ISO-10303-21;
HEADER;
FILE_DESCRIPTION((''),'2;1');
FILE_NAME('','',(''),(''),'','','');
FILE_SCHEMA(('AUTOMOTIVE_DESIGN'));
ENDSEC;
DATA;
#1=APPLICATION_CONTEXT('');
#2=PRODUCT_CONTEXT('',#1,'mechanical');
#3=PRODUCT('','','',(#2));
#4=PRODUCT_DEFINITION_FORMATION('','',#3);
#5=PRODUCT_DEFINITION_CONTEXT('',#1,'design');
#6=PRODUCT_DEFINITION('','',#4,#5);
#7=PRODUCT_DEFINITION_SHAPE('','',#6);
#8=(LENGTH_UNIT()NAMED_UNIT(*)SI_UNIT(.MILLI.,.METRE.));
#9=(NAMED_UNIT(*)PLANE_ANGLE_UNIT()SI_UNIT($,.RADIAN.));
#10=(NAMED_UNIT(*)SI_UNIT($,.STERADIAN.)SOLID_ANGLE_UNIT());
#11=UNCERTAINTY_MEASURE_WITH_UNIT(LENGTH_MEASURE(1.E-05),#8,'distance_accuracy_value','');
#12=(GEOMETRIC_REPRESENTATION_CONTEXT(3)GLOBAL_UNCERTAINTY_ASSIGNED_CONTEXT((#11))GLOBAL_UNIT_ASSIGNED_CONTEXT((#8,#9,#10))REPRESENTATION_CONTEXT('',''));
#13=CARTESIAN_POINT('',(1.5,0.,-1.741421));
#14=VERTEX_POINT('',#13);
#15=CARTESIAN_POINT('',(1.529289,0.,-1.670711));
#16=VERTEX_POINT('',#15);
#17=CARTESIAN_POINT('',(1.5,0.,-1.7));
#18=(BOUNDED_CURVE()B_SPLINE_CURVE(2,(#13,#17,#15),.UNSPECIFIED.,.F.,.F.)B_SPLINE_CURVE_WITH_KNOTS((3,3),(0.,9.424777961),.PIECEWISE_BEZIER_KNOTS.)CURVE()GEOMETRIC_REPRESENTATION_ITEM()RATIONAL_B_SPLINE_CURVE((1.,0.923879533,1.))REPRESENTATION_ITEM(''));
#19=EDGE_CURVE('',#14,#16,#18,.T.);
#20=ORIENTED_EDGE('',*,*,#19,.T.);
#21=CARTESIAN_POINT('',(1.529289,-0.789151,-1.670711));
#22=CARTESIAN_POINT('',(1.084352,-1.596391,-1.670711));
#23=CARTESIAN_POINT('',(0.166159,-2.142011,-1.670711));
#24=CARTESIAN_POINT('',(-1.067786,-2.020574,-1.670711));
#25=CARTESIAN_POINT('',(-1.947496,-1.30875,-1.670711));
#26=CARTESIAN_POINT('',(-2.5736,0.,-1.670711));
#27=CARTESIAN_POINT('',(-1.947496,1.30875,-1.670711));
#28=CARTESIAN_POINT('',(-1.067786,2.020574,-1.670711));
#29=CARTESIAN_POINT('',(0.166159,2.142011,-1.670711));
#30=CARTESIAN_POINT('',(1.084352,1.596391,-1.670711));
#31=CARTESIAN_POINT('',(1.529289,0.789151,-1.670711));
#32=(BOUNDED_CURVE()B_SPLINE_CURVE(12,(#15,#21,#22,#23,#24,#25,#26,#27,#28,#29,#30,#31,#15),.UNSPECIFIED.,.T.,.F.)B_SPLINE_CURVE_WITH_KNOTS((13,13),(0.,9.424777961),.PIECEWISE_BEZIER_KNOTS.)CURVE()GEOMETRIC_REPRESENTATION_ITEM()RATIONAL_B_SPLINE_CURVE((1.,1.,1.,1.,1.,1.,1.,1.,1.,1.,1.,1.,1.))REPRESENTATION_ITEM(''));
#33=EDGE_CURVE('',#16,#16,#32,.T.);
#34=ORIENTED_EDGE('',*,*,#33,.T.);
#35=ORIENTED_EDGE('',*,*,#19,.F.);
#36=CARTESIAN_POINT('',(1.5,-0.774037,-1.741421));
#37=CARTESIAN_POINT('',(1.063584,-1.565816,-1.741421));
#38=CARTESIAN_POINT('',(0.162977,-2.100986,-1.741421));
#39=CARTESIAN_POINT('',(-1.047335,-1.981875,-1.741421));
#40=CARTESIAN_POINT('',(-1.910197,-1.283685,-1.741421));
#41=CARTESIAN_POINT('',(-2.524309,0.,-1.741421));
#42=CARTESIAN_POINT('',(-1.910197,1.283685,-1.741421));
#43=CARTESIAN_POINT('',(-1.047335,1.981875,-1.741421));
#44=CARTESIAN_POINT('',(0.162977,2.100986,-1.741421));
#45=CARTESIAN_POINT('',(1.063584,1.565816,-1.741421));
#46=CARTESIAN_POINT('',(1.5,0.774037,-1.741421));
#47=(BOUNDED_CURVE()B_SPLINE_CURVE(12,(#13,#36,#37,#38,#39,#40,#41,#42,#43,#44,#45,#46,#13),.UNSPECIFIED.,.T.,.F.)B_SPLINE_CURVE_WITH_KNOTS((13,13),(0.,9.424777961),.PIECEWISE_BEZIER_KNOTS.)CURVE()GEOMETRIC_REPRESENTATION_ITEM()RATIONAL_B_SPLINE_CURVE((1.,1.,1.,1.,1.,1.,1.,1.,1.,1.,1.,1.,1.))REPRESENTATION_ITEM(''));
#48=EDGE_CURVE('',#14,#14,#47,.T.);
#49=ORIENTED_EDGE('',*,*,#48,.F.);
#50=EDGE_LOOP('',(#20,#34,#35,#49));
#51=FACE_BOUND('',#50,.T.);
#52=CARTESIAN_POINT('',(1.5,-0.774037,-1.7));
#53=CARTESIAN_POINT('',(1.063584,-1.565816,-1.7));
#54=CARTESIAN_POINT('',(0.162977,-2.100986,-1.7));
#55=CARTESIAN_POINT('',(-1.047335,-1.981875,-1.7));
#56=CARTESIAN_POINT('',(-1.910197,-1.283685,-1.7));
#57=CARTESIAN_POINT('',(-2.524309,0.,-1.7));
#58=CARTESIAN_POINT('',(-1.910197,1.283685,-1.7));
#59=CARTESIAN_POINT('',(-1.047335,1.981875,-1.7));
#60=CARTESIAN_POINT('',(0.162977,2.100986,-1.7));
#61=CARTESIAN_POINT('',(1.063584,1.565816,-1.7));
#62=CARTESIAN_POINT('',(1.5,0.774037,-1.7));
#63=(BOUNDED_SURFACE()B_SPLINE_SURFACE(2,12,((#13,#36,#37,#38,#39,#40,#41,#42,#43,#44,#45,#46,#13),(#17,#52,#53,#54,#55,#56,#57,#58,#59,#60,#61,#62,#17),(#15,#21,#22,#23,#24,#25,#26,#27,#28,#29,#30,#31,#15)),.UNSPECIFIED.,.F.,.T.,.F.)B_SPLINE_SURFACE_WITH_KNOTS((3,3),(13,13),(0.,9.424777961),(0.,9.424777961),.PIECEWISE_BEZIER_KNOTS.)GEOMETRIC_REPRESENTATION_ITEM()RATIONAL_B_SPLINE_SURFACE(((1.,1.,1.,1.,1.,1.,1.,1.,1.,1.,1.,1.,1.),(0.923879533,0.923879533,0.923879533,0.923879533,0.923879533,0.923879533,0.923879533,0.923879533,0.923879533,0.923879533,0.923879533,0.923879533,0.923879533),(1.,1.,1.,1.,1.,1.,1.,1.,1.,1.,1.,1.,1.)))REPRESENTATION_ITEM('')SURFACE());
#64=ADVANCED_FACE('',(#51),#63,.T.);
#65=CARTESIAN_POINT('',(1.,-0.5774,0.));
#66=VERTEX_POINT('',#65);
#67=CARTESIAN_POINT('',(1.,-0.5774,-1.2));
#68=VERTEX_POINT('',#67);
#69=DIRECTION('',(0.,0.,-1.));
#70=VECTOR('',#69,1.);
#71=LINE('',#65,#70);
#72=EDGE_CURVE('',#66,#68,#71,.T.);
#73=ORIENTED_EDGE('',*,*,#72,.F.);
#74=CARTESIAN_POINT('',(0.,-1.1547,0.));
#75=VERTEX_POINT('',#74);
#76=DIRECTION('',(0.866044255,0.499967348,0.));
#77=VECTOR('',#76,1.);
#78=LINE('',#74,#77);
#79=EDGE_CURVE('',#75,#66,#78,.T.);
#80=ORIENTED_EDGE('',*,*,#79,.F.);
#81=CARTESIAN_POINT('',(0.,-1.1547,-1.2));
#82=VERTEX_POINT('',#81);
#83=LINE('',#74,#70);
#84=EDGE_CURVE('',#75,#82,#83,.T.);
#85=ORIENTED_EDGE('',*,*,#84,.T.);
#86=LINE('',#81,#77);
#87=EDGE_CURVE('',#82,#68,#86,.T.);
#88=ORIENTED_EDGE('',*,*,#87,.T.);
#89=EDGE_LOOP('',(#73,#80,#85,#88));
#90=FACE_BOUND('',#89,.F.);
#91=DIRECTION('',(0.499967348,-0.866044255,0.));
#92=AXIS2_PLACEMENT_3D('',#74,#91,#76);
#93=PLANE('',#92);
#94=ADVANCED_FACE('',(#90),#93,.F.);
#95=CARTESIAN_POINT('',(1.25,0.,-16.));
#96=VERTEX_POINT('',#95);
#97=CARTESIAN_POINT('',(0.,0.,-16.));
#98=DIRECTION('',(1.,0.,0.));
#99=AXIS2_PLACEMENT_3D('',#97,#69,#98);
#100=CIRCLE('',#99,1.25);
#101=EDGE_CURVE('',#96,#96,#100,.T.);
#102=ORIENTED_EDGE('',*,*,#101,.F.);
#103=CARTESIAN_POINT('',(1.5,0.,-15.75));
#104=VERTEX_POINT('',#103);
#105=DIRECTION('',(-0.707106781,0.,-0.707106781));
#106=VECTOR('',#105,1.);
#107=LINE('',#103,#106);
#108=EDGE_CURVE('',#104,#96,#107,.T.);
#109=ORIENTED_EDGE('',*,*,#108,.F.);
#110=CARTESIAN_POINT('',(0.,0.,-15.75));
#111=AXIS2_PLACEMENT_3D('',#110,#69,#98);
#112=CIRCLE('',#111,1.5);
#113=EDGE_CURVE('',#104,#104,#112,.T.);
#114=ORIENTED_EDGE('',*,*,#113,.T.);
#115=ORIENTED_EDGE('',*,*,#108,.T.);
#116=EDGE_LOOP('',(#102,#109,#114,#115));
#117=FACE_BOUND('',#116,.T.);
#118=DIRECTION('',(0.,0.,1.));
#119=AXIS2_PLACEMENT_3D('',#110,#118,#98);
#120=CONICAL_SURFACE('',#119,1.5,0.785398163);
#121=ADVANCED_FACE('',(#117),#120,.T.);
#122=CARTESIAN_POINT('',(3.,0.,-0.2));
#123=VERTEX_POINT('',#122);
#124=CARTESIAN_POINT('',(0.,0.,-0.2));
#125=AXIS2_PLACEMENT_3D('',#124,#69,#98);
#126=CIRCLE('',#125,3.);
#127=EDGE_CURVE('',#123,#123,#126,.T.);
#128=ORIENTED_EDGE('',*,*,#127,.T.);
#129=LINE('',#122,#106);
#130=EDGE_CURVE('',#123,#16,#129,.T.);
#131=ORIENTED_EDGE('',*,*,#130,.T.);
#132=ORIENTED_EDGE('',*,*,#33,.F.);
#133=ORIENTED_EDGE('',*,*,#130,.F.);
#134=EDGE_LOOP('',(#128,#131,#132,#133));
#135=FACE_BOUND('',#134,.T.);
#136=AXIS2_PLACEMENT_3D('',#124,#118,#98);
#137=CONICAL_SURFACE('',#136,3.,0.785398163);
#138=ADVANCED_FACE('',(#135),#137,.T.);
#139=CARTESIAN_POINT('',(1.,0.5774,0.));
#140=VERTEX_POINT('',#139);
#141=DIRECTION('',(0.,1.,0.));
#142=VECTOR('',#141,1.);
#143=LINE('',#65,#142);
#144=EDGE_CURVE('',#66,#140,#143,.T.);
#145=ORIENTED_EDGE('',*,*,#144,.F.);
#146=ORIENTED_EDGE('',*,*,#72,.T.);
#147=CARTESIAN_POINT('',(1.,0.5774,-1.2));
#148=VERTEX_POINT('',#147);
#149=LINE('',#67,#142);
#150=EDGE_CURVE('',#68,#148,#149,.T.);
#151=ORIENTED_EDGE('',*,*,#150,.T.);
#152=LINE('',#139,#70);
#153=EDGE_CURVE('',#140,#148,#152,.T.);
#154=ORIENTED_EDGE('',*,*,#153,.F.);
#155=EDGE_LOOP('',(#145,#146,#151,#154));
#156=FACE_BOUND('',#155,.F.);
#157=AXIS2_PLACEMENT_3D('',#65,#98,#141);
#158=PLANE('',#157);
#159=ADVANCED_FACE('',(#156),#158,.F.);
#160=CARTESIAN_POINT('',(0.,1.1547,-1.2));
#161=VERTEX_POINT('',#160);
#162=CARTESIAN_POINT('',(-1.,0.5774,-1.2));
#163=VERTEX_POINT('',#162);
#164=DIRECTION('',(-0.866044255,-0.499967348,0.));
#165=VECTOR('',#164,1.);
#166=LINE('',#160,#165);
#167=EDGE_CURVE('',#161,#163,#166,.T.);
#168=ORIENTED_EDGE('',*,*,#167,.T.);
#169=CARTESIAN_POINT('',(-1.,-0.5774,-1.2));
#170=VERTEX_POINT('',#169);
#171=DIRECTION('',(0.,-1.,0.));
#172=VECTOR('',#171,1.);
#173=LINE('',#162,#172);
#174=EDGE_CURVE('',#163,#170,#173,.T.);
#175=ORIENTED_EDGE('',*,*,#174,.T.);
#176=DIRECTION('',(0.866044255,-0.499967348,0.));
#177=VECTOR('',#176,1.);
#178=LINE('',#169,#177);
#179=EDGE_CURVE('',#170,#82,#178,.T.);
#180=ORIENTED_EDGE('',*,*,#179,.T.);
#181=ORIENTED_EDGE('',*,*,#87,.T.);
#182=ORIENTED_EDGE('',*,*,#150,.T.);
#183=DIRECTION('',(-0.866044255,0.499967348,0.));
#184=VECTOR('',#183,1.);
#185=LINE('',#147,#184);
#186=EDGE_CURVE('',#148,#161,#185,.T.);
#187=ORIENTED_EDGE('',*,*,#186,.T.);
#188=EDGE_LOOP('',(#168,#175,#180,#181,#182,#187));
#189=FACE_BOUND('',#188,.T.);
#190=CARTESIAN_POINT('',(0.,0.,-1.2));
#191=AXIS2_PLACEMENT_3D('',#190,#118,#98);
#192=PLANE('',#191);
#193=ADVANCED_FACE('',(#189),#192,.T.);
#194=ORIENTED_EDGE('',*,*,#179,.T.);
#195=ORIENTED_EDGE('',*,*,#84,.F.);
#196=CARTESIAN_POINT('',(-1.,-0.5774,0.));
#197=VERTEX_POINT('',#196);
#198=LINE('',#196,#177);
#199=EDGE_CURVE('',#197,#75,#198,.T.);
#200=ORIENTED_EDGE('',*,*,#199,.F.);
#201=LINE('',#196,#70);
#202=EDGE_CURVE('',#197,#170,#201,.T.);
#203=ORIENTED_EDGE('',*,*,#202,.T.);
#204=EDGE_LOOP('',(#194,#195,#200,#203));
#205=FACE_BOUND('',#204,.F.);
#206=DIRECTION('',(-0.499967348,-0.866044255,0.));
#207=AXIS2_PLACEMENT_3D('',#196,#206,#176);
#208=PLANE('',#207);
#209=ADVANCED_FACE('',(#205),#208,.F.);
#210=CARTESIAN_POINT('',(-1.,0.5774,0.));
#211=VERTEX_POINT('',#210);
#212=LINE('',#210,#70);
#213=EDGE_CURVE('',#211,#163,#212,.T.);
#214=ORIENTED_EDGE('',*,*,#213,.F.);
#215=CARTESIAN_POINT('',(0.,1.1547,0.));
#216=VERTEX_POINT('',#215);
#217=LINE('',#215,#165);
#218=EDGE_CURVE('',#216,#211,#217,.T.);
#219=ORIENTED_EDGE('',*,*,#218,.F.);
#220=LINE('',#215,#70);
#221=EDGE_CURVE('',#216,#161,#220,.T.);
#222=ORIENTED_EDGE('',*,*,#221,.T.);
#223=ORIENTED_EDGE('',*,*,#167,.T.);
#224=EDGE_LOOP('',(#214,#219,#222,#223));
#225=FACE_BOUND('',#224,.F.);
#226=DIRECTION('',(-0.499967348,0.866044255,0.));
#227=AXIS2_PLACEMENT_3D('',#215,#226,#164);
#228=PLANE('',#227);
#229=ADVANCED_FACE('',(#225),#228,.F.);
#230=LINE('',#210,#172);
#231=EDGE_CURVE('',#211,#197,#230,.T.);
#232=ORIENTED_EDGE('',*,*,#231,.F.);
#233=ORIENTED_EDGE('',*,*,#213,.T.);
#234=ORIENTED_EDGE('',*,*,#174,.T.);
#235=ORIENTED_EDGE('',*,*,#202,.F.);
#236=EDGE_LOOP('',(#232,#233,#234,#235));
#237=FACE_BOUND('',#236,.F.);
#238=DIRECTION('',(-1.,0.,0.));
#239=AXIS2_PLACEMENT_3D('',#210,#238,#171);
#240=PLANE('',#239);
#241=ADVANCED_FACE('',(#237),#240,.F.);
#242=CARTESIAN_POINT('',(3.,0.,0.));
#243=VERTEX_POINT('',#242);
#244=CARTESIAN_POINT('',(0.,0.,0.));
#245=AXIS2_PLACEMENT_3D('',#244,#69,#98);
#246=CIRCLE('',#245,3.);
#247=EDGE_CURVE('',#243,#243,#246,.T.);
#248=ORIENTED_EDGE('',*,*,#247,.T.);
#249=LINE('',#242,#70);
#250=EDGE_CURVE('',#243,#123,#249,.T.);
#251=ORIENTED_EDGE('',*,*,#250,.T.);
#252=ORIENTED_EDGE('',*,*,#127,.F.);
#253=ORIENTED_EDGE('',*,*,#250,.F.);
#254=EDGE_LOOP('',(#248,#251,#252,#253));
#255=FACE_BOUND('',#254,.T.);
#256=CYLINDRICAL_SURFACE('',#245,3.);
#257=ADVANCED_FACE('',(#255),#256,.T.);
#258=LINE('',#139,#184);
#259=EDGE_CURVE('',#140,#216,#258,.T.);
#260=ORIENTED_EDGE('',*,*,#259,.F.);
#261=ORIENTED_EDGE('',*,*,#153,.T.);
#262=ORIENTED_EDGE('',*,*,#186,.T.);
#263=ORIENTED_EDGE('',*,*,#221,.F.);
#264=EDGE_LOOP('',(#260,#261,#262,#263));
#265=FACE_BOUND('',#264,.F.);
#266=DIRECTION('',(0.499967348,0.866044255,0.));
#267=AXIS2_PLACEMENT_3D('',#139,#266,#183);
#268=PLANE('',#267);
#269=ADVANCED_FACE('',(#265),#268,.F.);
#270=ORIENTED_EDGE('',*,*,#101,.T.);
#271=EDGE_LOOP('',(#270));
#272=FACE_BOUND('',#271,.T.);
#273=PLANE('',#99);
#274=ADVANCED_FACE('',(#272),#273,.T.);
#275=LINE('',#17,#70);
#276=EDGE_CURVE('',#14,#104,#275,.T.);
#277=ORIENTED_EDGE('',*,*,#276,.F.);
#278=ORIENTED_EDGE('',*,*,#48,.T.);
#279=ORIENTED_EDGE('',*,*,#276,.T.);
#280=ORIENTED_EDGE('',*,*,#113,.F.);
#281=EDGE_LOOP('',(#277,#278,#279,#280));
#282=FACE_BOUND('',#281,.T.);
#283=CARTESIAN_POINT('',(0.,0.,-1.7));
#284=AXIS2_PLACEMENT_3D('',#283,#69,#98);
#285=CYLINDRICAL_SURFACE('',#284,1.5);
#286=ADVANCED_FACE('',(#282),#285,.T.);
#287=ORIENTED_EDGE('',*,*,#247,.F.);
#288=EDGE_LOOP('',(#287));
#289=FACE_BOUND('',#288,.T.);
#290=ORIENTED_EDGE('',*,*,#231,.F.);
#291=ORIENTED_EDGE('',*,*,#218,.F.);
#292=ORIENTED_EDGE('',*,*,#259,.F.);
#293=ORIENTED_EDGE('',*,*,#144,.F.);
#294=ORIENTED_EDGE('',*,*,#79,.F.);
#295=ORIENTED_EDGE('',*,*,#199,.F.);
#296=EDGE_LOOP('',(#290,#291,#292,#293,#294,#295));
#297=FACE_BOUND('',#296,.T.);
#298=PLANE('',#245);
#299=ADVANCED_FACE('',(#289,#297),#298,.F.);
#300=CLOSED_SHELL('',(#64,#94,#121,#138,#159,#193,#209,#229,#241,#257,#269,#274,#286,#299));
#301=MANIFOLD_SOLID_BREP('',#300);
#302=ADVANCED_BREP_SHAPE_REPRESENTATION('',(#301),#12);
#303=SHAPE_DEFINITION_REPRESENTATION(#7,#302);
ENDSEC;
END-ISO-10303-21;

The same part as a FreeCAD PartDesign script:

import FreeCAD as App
import Part
import Sketcher

V = App.Vector


def edges_at(feature, points):
    """Names of the edges that pass closest to the given points."""
    edges = feature.Shape.Edges
    near = lambda p: min(range(len(edges)), key=lambda i: edges[i].distToShape(Part.Vertex(*p))[0])
    return sorted({f"Edge{near(p) + 1}" for p in points})


def add_polygon(sketch, points):
    """Adds a closed chain of lines whose ends are joined by coincident constraints."""
    first, n = sketch.GeometryCount, len(points)
    for a, b in zip(points, points[1:] + points[:1]):
        sketch.addGeometry(Part.LineSegment(App.Vector(*a, 0), App.Vector(*b, 0)), False)
    for i in range(n):
        sketch.addConstraint(Sketcher.Constraint("Coincident", first + i, 2, first + (i + 1) % n, 1))

doc = App.newDocument("Part")
body = doc.addObject("PartDesign::Body", "Body")

# Sketch on XZ plane
sketch1 = body.newObject("Sketcher::SketchObject", "Sketch")
sketch1.AttachmentSupport = (doc.getObject("XZ_Plane"), [""])
sketch1.MapMode = "FlatFace"
add_polygon(sketch1, [(1.5, -1.7), (1.5, -16), (0, -16), (0, 0), (3, 0), (3, -0.2)])  # lines 0-5
sketch1.addConstraint([
    Sketcher.Constraint("Vertical", 0),
    Sketcher.Constraint("Horizontal", 1),
    Sketcher.Constraint("Vertical", 2),
    Sketcher.Constraint("Horizontal", 3),
    Sketcher.Constraint("Vertical", 4),
    Sketcher.Constraint("Coincident", 2, 2, -1, 1),
    Sketcher.Constraint("DistanceX", 3, 1, 3, 2, 3.0),
    Sketcher.Constraint("DistanceY", 2, 1, 2, 2, 16.0),
    Sketcher.Constraint("DistanceX", 1, 2, 1, 1, 1.5),
    Sketcher.Constraint("DistanceY", 4, 2, 4, 1, 0.2),
    Sketcher.Constraint("DistanceY", 5, 2, 4, 2, 1.5),
])
revolution = body.newObject("PartDesign::Revolution", "Revolution")
revolution.Profile = sketch1
revolution.ReferenceAxis = (sketch1, ["V_Axis"])
revolution.Angle = 360

# Sketch on XY plane
sketch2 = body.newObject("Sketcher::SketchObject", "Sketch001")
sketch2.AttachmentSupport = (doc.getObject("XY_Plane"), [""])
sketch2.MapMode = "FlatFace"
add_polygon(sketch2, [(0, 1.2), (-1, 0.6), (-1, -0.6), (0, -1.2), (1, -0.6), (1, 0.6)])  # lines 0-5
sketch2.addConstraint([
    Sketcher.Constraint("Vertical", 1),
    Sketcher.Constraint("Vertical", 4),
    Sketcher.Constraint("Symmetric", 0, 2, 3, 2, -1, 1),
    Sketcher.Constraint("Symmetric", 2, 2, 5, 2, -1, 1),
    Sketcher.Constraint("PointOnObject", 2, 2, -2),
    Sketcher.Constraint("Parallel", 2, 5),
    Sketcher.Constraint("Horizontal", 1, 2, 3, 2),
    Sketcher.Constraint("DistanceX", 1, 2, 3, 2, 2.0),
    Sketcher.Constraint("DistanceY", 1, 2, 1, 1, 1.1548),
    Sketcher.Constraint("DistanceY", 2, 2, 0, 2, 1.732),
])
pocket1 = body.newObject("PartDesign::Pocket", "Pocket")
pocket1.Profile = sketch2
pocket1.Length = 1.2
doc.recompute()

fillet = body.newObject("PartDesign::Fillet", "Fillet")
fillet.Base = (pocket1, edges_at(pocket1, [(-1.5, 0, -1.7)]))
fillet.Radius = 0.1
doc.recompute()

chamfer = body.newObject("PartDesign::Chamfer", "Chamfer")
chamfer.Base = (fillet, edges_at(fillet, [(-1.5, 0, -16)]))
chamfer.Size = 0.25

doc.recompute()
